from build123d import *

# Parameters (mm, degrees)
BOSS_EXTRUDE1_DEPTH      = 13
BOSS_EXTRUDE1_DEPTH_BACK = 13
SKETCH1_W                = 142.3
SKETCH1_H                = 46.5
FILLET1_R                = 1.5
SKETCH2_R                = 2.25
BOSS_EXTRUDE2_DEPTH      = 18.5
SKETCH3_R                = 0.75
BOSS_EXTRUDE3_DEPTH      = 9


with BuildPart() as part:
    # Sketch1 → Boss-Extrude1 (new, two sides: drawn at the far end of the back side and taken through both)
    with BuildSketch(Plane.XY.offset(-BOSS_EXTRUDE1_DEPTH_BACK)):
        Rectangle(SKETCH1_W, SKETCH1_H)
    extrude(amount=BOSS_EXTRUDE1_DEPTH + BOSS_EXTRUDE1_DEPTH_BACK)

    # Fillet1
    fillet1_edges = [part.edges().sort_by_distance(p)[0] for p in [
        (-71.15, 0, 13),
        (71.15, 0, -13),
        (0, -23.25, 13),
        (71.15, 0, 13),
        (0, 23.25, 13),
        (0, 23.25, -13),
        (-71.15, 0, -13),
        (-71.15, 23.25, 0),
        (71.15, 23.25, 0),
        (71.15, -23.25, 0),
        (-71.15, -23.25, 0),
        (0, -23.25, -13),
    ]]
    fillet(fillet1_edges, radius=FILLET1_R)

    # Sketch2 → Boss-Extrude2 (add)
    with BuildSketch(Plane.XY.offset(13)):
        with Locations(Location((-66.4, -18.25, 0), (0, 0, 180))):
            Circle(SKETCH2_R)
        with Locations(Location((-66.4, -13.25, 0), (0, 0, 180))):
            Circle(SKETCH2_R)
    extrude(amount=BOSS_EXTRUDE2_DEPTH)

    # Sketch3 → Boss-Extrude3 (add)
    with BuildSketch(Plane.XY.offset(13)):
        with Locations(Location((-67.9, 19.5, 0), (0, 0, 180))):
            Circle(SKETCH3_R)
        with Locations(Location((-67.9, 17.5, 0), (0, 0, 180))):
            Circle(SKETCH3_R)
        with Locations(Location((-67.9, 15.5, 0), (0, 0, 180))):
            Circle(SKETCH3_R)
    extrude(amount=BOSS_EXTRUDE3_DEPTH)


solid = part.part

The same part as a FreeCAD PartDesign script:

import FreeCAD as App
import Part
import Sketcher

V = App.Vector
Q = App.Units.Quantity


def add_polygon(sketch, points):
    """Adds a closed chain of lines whose ends are joined by coincident constraints."""
    first, n = sketch.GeometryCount, len(points)
    for a, b in zip(points, points[1:] + points[:1]):
        sketch.addGeometry(Part.LineSegment(App.Vector(*a, 0), App.Vector(*b, 0)), False)
    for i in range(n):
        sketch.addConstraint(Sketcher.Constraint("Coincident", first + i, 2, first + (i + 1) % n, 1))

doc = App.newDocument("Part")
body = doc.addObject("PartDesign::Body", "Body")

sketch1 = doc.addObject("Sketcher::SketchObject", "Sketch")
body.addObject(sketch1)
sketch1.AttachmentSupport = (doc.XY_Plane, [""])
sketch1.MapMode = "FlatFace"
add_polygon(sketch1, [(-71, 23), (-71, -23), (71, -23), (71, 23)])
sketch1.addConstraint(Sketcher.Constraint("Vertical", 0))
sketch1.addConstraint(Sketcher.Constraint("Horizontal", 1))
sketch1.addConstraint(Sketcher.Constraint("Vertical", 2))
sketch1.addConstraint(Sketcher.Constraint("Horizontal", 3))
sketch1.addConstraint(Sketcher.Constraint("Symmetric", 0, 2, 2, 2, -1, 1))
sketch1.addConstraint(Sketcher.Constraint("DistanceX", 1, 1, 1, 2, Q("142.3 mm")))
sketch1.addConstraint(Sketcher.Constraint("DistanceY", 0, 2, 0, 1, Q("46.5 mm")))
pad1 = doc.addObject("PartDesign::Pad", "Pad")
body.addObject(pad1)
pad1.Profile = sketch1
pad1.Type = "TwoLengths"
pad1.Length = 13
pad1.Length2 = 13
doc.recompute()

fillet = doc.addObject("PartDesign::Fillet", "Fillet")
body.addObject(fillet)
fillet.Base = (pad1, ["Edge1"])
fillet.UseAllEdges = True
fillet.Radius = 1.5

sketch2 = doc.addObject("Sketcher::SketchObject", "Sketch001")
body.addObject(sketch2)
sketch2.AttachmentSupport = (doc.XY_Plane, [""])
sketch2.MapMode = "FlatFace"
sketch2.AttachmentOffset = App.Placement(V(0, 0, 13), App.Rotation())
sketch2.addGeometry(Part.Circle(V(-66.4, -18.2, 0), V(0, 0, 1), 2.2), False)
sketch2.addGeometry(Part.Circle(V(-66.4, -13.2, 0), V(0, 0, 1), 2.2), False)
sketch2.addConstraint(Sketcher.Constraint("Equal", 0, 1))
sketch2.addConstraint(Sketcher.Constraint("Vertical", 0, 3, 1, 3))
sketch2.addConstraint(Sketcher.Constraint("Diameter", 0, Q("4.5 mm")))
sketch2.addConstraint(Sketcher.Constraint("DistanceY", 0, 3, 1, 3, Q("5 mm")))
sketch2.addConstraint(Sketcher.Constraint("DistanceX", 0, 3, -1, 1, Q("66.4 mm")))
sketch2.addConstraint(Sketcher.Constraint("DistanceY", 0, 3, -1, 1, Q("18.25 mm")))
pad2 = doc.addObject("PartDesign::Pad", "Pad001")
body.addObject(pad2)
pad2.Profile = sketch2
pad2.Length = 18.5

sketch3 = doc.addObject("Sketcher::SketchObject", "Sketch002")
body.addObject(sketch3)
sketch3.AttachmentSupport = (doc.XY_Plane, [""])
sketch3.MapMode = "FlatFace"
sketch3.AttachmentOffset = App.Placement(V(0, 0, 13), App.Rotation())
sketch3.addGeometry(Part.Circle(V(-67.9, 19.5, 0), V(0, 0, 1), 0.8), False)
sketch3.addGeometry(Part.Circle(V(-67.9, 17.5, 0), V(0, 0, 1), 0.8), False)
sketch3.addGeometry(Part.Circle(V(-67.9, 15.5, 0), V(0, 0, 1), 0.8), False)
sketch3.addConstraint(Sketcher.Constraint("Equal", 0, 1))
sketch3.addConstraint(Sketcher.Constraint("Equal", 1, 2))
sketch3.addConstraint(Sketcher.Constraint("Vertical", 0, 3, 1, 3))
sketch3.addConstraint(Sketcher.Constraint("Vertical", 1, 3, 2, 3))
sketch3.addConstraint(Sketcher.Constraint("Diameter", 0, Q("1.5 mm")))
sketch3.addConstraint(Sketcher.Constraint("DistanceY", 1, 3, 0, 3, Q("2 mm")))
sketch3.addConstraint(Sketcher.Constraint("DistanceY", 2, 3, 1, 3, Q("2 mm")))
sketch3.addConstraint(Sketcher.Constraint("DistanceX", 0, 3, -1, 1, Q("67.9 mm")))
sketch3.addConstraint(Sketcher.Constraint("DistanceY", -1, 1, 0, 3, Q("19.5 mm")))
pad3 = doc.addObject("PartDesign::Pad", "Pad002")
body.addObject(pad3)
pad3.Profile = sketch3
pad3.Length = 9

doc.recompute()
